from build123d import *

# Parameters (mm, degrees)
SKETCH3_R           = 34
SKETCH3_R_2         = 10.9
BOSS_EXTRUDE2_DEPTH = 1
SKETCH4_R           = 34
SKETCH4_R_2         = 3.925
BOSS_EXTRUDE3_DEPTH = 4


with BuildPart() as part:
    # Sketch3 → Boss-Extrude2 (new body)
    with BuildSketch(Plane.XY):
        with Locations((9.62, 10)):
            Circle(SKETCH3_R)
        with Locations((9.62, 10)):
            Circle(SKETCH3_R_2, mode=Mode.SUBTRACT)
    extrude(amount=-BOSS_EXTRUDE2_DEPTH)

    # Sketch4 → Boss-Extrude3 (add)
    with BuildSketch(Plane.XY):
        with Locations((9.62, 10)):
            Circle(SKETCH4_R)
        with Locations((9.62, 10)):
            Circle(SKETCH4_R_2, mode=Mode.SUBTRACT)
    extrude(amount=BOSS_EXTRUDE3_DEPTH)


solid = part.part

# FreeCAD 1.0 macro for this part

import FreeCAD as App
import Part
import Sketcher

V = App.Vector
Q = App.Units.Quantity

doc = App.newDocument("Part")
body = doc.addObject("PartDesign::Body", "Body")

sketch1 = body.newObject("Sketcher::SketchObject", "Sketch")
sketch1.AttachmentSupport = (doc.getObject("XY_Plane"), [""])
sketch1.MapMode = "FlatFace"
sketch1.addGeometry([
    Part.Circle(V(9.62, 10, 0), V(0, 0, 1), 34),
    Part.Circle(V(9.62, 10, 0), V(0, 0, 1), 10.9),
], False)
sketch1.addConstraint([
    Sketcher.Constraint("Coincident", 1, 3, 0, 3),
    Sketcher.Constraint("Diameter", 0, Q("68 mm")),
    Sketcher.Constraint("Diameter", 1, Q("21.8 mm")),
    Sketcher.Constraint("DistanceY", -1, 1, 0, 3, Q("10 mm")),
    Sketcher.Constraint("DistanceX", -1, 1, 0, 3, Q("9.62 mm")),
])
pad1 = body.newObject("PartDesign::Pad", "Pad")
pad1.Profile = sketch1
pad1.Length = 1
pad1.Reversed = True

sketch2 = body.newObject("Sketcher::SketchObject", "Sketch001")
sketch2.AttachmentSupport = (doc.getObject("XY_Plane"), [""])
sketch2.MapMode = "FlatFace"
sketch2.addGeometry([
    Part.Circle(V(9.62, 10, 0), V(0, 0, 1), 34),
    Part.Circle(V(9.62, 10, 0), V(0, 0, 1), 3.925),
], False)
sketch2.addConstraint([
    Sketcher.Constraint("Coincident", 1, 3, 0, 3),
    Sketcher.Constraint("Diameter", 0, Q("68 mm")),
    Sketcher.Constraint("Diameter", 1, Q("7.85 mm")),
    Sketcher.Constraint("DistanceY", -1, 1, 0, 3, Q("10 mm")),
    Sketcher.Constraint("DistanceX", -1, 1, 0, 3, Q("9.62 mm")),
])
pad2 = body.newObject("PartDesign::Pad", "Pad001")
pad2.Profile = sketch2
pad2.Length = 4

doc.recompute()
